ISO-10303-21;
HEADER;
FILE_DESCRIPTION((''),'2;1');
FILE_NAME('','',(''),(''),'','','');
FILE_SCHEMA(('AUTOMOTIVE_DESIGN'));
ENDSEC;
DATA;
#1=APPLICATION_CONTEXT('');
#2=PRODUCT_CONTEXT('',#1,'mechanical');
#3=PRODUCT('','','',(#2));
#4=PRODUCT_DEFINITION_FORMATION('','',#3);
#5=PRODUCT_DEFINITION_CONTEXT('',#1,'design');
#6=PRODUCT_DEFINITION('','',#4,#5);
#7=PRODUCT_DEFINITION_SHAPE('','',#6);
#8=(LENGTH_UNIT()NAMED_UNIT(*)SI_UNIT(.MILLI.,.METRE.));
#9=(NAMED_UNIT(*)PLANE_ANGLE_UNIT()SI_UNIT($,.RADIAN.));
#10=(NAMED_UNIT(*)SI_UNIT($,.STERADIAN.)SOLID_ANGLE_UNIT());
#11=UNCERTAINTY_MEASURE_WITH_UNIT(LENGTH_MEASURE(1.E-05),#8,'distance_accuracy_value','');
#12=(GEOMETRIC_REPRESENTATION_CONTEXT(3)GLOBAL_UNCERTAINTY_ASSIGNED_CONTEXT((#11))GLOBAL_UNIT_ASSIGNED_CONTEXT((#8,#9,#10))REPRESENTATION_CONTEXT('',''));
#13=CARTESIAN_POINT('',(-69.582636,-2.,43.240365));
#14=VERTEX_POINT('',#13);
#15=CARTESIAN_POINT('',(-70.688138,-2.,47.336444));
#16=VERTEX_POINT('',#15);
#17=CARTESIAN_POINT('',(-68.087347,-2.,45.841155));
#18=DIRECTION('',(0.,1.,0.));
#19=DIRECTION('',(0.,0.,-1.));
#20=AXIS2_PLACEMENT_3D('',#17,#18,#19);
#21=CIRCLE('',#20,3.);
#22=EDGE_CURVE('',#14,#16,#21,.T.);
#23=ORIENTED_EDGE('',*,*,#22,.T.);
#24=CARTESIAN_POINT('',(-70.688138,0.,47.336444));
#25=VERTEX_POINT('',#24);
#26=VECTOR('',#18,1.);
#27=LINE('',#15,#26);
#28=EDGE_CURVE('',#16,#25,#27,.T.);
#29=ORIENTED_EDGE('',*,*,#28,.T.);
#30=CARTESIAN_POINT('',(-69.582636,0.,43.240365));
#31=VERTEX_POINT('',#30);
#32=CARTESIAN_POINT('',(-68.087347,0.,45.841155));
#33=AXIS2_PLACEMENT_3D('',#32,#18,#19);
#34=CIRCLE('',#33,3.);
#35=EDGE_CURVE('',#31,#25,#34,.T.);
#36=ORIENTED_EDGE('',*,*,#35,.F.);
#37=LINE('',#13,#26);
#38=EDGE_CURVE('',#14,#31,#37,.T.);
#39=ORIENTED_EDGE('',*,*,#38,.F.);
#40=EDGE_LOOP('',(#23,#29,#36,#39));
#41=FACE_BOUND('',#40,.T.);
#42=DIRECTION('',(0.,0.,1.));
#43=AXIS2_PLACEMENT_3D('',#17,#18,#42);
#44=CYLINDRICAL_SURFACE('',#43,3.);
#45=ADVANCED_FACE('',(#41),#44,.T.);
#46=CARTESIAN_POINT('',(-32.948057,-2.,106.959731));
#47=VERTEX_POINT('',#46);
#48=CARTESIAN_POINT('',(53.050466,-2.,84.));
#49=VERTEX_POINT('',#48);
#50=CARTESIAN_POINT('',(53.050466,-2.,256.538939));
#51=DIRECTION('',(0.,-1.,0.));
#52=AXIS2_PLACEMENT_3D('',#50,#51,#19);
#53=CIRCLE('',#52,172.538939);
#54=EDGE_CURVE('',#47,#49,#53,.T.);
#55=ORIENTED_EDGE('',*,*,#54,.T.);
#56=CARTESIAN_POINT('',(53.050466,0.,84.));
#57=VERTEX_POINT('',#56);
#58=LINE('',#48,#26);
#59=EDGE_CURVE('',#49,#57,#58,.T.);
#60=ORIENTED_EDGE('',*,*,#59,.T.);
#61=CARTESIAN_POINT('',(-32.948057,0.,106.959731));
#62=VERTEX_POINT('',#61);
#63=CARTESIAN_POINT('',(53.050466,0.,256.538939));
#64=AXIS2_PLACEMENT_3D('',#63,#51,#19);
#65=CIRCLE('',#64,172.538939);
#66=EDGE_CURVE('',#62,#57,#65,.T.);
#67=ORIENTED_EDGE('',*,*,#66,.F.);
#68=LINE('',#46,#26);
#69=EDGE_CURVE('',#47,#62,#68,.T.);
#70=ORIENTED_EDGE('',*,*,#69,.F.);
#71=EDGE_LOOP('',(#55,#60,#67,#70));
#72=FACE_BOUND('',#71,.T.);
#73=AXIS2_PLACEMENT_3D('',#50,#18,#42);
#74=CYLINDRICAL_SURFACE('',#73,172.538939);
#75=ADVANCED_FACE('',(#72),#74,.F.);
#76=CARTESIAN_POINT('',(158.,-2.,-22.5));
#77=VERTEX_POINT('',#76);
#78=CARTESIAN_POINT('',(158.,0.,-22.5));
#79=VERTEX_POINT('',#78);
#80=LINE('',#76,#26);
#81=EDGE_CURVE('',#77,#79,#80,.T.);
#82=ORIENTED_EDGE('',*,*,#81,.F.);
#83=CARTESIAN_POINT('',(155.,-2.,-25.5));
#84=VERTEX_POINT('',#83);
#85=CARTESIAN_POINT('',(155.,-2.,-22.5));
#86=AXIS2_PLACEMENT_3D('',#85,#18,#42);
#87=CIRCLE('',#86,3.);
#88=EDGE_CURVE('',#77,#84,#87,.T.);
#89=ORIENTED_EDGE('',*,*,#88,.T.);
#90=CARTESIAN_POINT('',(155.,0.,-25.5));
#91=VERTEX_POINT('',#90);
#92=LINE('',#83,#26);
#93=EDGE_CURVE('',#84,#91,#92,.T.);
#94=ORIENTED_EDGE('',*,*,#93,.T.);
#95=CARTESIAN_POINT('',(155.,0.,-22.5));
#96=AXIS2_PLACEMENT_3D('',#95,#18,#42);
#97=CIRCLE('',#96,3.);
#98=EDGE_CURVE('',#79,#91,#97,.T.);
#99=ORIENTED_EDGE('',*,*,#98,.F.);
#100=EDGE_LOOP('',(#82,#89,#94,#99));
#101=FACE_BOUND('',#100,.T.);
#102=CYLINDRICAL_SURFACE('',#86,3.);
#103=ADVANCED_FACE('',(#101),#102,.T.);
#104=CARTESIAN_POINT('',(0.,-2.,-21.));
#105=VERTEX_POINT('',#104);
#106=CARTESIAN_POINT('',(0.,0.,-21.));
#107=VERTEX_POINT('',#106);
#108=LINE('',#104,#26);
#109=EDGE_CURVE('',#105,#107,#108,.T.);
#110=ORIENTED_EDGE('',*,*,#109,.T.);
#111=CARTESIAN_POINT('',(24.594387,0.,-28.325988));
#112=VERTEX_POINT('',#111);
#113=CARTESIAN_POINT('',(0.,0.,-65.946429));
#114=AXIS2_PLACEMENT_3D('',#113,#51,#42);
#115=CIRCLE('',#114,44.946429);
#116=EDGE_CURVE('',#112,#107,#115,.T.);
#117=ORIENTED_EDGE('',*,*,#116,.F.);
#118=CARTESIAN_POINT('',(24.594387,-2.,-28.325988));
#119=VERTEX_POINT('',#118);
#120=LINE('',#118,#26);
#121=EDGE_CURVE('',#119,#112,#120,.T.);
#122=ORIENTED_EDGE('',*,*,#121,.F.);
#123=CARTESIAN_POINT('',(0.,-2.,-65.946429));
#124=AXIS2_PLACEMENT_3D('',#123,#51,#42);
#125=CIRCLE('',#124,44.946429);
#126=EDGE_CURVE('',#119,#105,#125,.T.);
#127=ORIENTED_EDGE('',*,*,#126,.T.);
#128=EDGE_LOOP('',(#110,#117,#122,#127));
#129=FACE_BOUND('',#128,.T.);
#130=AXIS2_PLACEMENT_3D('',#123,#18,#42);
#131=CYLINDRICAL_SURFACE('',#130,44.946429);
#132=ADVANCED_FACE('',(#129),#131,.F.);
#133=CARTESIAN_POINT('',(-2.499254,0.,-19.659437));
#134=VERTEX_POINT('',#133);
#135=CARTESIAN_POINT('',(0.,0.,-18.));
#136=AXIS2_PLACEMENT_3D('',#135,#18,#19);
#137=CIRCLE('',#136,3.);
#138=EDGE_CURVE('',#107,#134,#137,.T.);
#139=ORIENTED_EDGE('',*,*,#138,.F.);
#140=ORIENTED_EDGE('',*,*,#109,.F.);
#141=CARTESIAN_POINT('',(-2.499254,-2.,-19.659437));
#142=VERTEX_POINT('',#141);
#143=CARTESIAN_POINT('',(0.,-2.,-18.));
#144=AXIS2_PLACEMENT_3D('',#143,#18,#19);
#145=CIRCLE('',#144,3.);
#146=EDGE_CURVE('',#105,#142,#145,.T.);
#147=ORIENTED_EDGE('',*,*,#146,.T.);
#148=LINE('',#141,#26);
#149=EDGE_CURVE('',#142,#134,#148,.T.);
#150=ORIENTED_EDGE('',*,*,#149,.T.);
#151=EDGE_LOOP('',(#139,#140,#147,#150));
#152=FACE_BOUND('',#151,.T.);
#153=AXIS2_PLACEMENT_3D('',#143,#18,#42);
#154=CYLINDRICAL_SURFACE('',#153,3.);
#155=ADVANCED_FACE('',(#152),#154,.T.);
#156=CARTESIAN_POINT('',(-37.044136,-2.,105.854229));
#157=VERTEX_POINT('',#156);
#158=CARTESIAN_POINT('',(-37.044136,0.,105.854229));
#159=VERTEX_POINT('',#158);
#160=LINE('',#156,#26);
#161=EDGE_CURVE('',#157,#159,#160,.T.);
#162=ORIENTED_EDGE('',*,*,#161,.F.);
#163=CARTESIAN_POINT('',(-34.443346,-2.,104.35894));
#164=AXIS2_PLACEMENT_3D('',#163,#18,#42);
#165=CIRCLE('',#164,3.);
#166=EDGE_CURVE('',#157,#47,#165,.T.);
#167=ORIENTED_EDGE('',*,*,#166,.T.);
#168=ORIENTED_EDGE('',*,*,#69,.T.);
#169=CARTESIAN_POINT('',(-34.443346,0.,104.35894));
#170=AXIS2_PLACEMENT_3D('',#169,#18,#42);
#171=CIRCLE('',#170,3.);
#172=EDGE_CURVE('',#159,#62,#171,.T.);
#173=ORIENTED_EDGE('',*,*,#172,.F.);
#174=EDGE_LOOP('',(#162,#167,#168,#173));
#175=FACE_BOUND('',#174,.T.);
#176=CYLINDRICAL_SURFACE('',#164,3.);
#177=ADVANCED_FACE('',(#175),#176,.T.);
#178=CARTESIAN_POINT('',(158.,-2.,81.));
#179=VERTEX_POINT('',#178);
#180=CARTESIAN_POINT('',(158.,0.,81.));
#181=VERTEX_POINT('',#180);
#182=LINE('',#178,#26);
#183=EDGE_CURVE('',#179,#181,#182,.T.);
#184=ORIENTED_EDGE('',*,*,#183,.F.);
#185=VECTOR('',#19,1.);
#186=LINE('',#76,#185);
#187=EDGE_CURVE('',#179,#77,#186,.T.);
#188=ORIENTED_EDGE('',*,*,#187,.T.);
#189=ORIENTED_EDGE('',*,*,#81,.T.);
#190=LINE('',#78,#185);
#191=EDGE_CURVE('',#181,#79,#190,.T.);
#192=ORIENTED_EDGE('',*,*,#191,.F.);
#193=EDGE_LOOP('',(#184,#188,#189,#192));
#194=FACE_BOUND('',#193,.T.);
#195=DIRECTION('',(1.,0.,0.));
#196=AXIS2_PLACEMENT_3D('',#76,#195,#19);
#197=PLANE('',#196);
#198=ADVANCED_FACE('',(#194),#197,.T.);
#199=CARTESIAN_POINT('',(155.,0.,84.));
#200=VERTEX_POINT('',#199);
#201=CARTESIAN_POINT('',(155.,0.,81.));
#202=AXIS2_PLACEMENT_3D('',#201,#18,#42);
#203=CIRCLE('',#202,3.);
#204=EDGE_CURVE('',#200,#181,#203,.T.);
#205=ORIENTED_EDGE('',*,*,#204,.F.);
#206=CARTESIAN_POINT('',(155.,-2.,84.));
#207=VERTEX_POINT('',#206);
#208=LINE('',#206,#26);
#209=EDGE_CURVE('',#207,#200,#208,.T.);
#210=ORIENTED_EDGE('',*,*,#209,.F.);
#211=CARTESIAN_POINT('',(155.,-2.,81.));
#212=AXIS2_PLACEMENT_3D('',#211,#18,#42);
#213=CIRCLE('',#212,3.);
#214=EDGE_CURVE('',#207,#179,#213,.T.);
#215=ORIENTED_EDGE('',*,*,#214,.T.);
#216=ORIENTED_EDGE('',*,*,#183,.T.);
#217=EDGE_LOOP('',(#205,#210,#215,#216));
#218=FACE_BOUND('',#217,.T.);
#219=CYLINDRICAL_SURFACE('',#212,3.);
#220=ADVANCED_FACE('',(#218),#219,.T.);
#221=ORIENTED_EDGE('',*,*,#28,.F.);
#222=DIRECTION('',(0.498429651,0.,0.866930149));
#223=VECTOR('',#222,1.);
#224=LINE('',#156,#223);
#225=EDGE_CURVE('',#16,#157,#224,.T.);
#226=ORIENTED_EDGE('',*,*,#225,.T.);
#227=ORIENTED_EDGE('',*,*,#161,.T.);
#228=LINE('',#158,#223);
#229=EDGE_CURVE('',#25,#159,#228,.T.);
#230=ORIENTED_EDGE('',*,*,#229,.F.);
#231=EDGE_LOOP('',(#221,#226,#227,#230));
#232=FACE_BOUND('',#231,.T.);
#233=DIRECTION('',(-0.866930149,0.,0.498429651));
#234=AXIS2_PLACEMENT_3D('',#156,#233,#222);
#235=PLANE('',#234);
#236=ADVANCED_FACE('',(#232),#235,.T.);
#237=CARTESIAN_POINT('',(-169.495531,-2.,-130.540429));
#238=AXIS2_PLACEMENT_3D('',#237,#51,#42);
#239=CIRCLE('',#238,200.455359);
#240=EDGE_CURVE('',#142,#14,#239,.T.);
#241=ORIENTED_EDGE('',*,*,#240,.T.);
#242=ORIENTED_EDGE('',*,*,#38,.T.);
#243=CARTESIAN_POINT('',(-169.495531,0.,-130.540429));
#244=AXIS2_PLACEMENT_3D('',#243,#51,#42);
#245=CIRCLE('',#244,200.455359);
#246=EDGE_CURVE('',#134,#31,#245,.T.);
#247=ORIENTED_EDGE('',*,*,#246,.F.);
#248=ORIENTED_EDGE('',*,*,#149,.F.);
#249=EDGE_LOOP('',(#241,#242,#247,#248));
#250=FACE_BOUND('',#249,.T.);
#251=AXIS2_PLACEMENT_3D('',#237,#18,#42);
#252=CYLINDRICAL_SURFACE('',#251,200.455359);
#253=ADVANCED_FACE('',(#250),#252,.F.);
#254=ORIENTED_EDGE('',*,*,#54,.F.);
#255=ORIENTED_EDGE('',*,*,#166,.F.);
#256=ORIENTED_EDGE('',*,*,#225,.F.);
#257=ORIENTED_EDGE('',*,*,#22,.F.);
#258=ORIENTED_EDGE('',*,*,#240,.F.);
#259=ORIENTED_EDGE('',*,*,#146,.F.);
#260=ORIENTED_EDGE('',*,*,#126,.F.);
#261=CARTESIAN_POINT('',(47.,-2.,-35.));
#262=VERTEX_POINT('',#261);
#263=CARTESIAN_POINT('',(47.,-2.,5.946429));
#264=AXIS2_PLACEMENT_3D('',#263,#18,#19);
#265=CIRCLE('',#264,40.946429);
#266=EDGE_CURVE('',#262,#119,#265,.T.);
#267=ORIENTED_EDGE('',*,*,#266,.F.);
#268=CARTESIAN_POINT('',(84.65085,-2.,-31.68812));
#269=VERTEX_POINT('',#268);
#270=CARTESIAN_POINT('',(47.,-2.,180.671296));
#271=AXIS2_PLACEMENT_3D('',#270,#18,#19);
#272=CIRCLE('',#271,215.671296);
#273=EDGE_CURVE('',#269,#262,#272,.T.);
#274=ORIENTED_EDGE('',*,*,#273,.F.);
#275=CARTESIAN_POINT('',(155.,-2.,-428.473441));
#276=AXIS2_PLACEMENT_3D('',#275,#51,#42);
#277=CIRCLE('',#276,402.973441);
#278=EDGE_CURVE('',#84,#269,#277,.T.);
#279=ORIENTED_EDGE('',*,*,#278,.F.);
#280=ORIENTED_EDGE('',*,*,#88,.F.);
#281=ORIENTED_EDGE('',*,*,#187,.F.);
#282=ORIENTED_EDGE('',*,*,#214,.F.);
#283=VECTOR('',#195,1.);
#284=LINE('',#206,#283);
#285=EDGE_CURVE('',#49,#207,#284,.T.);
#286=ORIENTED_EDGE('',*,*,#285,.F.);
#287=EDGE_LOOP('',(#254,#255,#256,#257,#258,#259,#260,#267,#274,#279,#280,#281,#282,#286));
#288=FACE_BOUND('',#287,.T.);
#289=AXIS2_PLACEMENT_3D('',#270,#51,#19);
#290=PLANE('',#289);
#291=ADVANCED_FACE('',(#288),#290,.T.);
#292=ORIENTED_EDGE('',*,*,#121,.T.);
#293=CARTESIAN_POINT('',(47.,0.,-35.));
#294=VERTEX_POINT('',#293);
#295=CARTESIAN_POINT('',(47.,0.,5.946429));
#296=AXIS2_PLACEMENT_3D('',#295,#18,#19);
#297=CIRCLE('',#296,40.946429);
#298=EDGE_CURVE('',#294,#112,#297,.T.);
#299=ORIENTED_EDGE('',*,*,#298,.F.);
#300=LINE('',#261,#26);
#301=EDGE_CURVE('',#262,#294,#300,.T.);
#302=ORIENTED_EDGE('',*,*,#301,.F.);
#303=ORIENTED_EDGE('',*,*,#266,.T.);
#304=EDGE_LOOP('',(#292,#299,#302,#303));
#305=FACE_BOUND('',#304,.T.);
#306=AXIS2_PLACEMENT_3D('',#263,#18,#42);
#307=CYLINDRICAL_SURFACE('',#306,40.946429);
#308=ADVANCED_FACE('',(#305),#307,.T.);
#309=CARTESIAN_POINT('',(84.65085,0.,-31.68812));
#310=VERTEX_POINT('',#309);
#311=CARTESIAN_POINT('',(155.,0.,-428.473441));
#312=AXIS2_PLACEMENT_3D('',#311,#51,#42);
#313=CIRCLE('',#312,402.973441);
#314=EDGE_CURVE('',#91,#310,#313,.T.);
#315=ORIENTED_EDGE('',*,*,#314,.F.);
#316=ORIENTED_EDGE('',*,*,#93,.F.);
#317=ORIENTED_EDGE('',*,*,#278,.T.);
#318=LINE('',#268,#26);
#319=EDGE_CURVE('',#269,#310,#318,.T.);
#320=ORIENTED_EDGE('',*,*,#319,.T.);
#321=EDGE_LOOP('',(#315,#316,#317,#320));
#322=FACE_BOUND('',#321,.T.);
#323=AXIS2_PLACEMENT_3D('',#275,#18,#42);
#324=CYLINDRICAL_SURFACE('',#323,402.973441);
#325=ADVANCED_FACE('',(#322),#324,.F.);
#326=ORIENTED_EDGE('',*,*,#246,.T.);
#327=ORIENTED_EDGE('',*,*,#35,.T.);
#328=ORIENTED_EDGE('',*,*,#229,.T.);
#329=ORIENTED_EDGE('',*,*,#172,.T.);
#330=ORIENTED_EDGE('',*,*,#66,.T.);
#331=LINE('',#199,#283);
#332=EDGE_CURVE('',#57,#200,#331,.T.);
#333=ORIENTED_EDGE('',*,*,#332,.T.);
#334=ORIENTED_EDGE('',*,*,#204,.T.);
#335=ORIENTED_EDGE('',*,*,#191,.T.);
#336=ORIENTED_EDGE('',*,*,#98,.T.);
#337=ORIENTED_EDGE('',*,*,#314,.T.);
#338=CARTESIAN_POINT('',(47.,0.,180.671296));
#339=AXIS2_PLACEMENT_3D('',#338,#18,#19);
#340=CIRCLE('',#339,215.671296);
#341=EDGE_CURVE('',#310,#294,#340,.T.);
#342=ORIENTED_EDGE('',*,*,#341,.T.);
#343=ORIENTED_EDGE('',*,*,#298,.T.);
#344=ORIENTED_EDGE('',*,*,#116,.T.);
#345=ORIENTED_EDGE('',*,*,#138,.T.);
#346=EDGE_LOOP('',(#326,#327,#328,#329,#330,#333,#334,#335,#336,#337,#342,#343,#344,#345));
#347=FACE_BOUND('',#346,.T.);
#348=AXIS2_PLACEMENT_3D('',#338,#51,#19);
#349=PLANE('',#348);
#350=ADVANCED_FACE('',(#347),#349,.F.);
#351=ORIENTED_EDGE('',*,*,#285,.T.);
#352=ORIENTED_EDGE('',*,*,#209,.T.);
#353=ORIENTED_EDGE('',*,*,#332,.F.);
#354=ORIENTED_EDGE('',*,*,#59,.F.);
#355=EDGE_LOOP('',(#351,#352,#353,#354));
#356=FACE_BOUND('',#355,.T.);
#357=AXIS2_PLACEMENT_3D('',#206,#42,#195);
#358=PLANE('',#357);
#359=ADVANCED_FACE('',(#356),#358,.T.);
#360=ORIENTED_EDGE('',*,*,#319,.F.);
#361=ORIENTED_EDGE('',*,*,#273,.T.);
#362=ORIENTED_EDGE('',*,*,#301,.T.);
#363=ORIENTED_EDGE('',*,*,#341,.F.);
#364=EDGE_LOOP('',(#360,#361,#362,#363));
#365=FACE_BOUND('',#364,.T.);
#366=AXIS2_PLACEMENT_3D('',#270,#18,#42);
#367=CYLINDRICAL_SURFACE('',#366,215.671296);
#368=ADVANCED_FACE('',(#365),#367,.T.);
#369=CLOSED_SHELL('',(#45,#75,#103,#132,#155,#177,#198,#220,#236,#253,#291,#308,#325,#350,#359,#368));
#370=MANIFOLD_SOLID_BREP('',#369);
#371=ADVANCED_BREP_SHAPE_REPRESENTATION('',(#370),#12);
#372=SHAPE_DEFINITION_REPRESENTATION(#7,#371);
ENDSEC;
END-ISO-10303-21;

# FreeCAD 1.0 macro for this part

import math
import FreeCAD as App
import Part
import Sketcher

V = App.Vector
Q = App.Units.Quantity

doc = App.newDocument("Part")
body = doc.addObject("PartDesign::Body", "Body")

# Sketch on XZ plane
sketch1 = body.newObject("Sketcher::SketchObject", "Sketch")
sketch1.AttachmentSupport = (doc.getObject("XZ_Plane"), [""])
sketch1.MapMode = "FlatFace"
sketch1.addGeometry([
    Part.LineSegment(V(158, 81, 0), V(158, -22.5, 0)),  # 0
    Part.ArcOfCircle(Part.Circle(V(155, -22.5, 0), V(0, 0, 1), 3), math.radians(-90), math.radians(0)),  # 1
    Part.ArcOfCircle(Part.Circle(V(155, -428.47344, 0), V(0, 0, 1), 402.97344), math.radians(90), math.radians(100.053936)),  # 2
    Part.ArcOfCircle(Part.Circle(V(47, 180.671296, 0), V(0, 0, 1), 215.671296), math.radians(-90), math.radians(-79.946064)),  # 3
    Part.ArcOfCircle(Part.Circle(V(47, 5.946429, 0), V(0, 0, 1), 40.946429), math.radians(-123.174677), math.radians(-90)),  # 4
    Part.ArcOfCircle(Part.Circle(V(0, -65.946429, 0), V(0, 0, 1), 44.946429), math.radians(56.825323), math.radians(90)),  # 5
    Part.ArcOfCircle(Part.Circle(V(0, -18, 0), V(0, 0, 1), 3), math.radians(-146.416919), math.radians(-90)),  # 6
    Part.ArcOfCircle(Part.Circle(V(-169.495531, -130.540429, 0), V(0, 0, 1), 200.455359), math.radians(33.583081), math.radians(60.103839)),  # 7
    Part.ArcOfCircle(Part.Circle(V(-68.087347, 45.841155, 0), V(0, 0, 1), 3), math.radians(150.103839), math.radians(240.103839)),  # 8
    Part.LineSegment(V(-70.688138, 47.336444, 0), V(-37.044136, 105.854229, 0)),  # 9
    Part.ArcOfCircle(Part.Circle(V(-34.443346, 104.35894, 0), V(0, 0, 1), 3), math.radians(60.103839), math.radians(150.103839)),  # 10
    Part.ArcOfCircle(Part.Circle(V(53.050466, 256.538939, 0), V(0, 0, 1), 172.538939), math.radians(-119.896161), math.radians(-90)),  # 11
    Part.LineSegment(V(53.050466, 84, 0), V(155, 84, 0)),  # 12
    Part.ArcOfCircle(Part.Circle(V(155, 81, 0), V(0, 0, 1), 3), math.radians(0), math.radians(90)),  # 13
], False)
sketch1.addConstraint([
    Sketcher.Constraint("Tangent", 0, 2, 1, 2),
    Sketcher.Constraint("Tangent", 1, 1, 2, 1),
    Sketcher.Constraint("Tangent", 2, 2, 3, 2),
    Sketcher.Constraint("Tangent", 3, 1, 4, 2),
    Sketcher.Constraint("Tangent", 4, 1, 5, 1),
    Sketcher.Constraint("Tangent", 5, 2, 6, 2),
    Sketcher.Constraint("Tangent", 6, 1, 7, 1),
    Sketcher.Constraint("Tangent", 7, 2, 8, 2),
    Sketcher.Constraint("Tangent", 8, 1, 9, 1),
    Sketcher.Constraint("Tangent", 9, 2, 10, 2),
    Sketcher.Constraint("Tangent", 10, 1, 11, 1),
    Sketcher.Constraint("Tangent", 11, 2, 12, 1),
    Sketcher.Constraint("Tangent", 12, 2, 13, 2),
    Sketcher.Constraint("Tangent", 13, 1, 0, 1),
    Sketcher.Constraint("Vertical", 0),
    Sketcher.Constraint("Horizontal", 12),
    Sketcher.Constraint("Equal", 1, 6),
    Sketcher.Constraint("Equal", 6, 8),
    Sketcher.Constraint("Equal", 8, 10),
    Sketcher.Constraint("Equal", 10, 13),
    Sketcher.Constraint("PointOnObject", 5, 3, -2),
    Sketcher.Constraint("PointOnObject", 6, 3, -2),
    Sketcher.Constraint("Vertical", 1, 3, 2, 3),
    Sketcher.Constraint("Vertical", 3, 3, 4, 3),
    Sketcher.Constraint("Radius", 1, Q("3 mm")),
    Sketcher.Constraint("DistanceY", 0, 2, 0, 1, Q("103.5 mm")),
    Sketcher.Constraint("DistanceX", -1, 1, 1, 3, Q("155 mm")),
    Sketcher.Constraint("DistanceX", -1, 1, 3, 3, Q("47 mm")),
    Sketcher.Constraint("DistanceY", 6, 3, -1, 1, Q("18 mm")),
    Sketcher.Constraint("DistanceY", -1, 1, 13, 3, Q("81 mm")),
    Sketcher.Constraint("DistanceY", 3, 1, -1, 1, Q("35 mm")),
    Sketcher.Constraint("Distance", 9, Q("67.5 mm")),
    Sketcher.Constraint("Radius", 2, Q("402.97344 mm")),
    Sketcher.Constraint("Radius", 4, Q("40.946429 mm")),
    Sketcher.Constraint("Radius", 7, Q("200.455359 mm")),
    Sketcher.Constraint("Radius", 11, Q("172.538939 mm")),
    Sketcher.Constraint("DistanceY", 10, 3, 11, 3, Q("152.179999 mm")),
    Sketcher.Constraint("DistanceY", 7, 3, 5, 3, Q("64.594001 mm")),
    Sketcher.Constraint("DistanceX", 8, 3, 10, 3, Q("33.644001 mm")),
])
pad1 = body.newObject("PartDesign::Pad", "Pad")
pad1.Profile = sketch1
pad1.Length = 2

doc.recompute()
